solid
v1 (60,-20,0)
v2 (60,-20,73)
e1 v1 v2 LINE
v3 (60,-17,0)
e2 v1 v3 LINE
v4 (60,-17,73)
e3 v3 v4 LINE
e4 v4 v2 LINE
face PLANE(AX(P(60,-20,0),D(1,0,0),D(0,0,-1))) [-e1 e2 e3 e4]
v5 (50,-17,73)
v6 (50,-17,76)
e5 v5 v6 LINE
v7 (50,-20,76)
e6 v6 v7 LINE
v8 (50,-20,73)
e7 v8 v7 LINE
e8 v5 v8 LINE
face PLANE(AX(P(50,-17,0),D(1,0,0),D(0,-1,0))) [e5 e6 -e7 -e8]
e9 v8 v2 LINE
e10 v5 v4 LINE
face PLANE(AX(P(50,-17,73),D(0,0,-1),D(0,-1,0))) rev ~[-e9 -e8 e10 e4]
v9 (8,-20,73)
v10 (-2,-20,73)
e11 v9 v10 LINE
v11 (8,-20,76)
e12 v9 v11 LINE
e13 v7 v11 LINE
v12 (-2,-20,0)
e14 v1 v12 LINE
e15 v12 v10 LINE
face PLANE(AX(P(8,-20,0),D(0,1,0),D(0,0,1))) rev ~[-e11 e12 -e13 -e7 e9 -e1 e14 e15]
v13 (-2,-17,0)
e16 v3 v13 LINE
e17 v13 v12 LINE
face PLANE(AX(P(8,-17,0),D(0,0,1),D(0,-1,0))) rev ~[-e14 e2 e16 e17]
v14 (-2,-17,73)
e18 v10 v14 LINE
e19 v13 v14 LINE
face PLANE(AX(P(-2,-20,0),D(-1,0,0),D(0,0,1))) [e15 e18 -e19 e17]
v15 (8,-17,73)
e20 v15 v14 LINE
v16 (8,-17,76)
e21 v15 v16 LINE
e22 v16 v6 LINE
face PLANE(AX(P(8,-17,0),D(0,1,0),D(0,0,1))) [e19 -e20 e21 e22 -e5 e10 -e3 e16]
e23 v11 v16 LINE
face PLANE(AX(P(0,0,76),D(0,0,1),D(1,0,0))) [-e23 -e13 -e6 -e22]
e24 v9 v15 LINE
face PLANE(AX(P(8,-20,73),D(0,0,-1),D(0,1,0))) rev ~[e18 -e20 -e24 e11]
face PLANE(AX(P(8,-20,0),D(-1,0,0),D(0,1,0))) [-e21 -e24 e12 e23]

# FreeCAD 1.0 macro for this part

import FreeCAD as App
import Part
import Sketcher

V = App.Vector
Q = App.Units.Quantity


def add_polygon(sketch, points):
    """Adds a closed chain of lines whose ends are joined by coincident constraints."""
    first, n = sketch.GeometryCount, len(points)
    for a, b in zip(points, points[1:] + points[:1]):
        sketch.addGeometry(Part.LineSegment(App.Vector(*a, 0), App.Vector(*b, 0)), False)
    for i in range(n):
        sketch.addConstraint(Sketcher.Constraint("Coincident", first + i, 2, first + (i + 1) % n, 1))

doc = App.newDocument("Part")
body = doc.addObject("PartDesign::Body", "Body")

sketch1 = body.newObject("Sketcher::SketchObject", "Sketch")
sketch1.AttachmentSupport = (doc.getObject("XY_Plane"), [""])
sketch1.MapMode = "FlatFace"
add_polygon(sketch1, [(8, -20), (50, -20), (50, -17), (8, -17)])
sketch1.addConstraint([
    Sketcher.Constraint("Horizontal", 0),
    Sketcher.Constraint("Vertical", 1),
    Sketcher.Constraint("Horizontal", 2),
    Sketcher.Constraint("Vertical", 3),
    Sketcher.Constraint("DistanceX", 0, 1, 0, 2, Q("42 mm")),
    Sketcher.Constraint("DistanceY", 1, 1, 1, 2, Q("3 mm")),
    Sketcher.Constraint("DistanceX", -1, 1, 0, 2, Q("50 mm")),
    Sketcher.Constraint("DistanceY", 0, 2, -1, 1, Q("20 mm")),
])
pad1 = body.newObject("PartDesign::Pad", "Pad")
pad1.Profile = sketch1
pad1.Length = 76

sketch2 = body.newObject("Sketcher::SketchObject", "Sketch001")
sketch2.AttachmentSupport = (doc.getObject("YZ_Plane"), [""])
sketch2.MapMode = "FlatFace"
sketch2.AttachmentOffset = App.Placement(V(0, 0, 50), App.Rotation())
add_polygon(sketch2, [(-20, 0), (-17, 0), (-17, 73), (-20, 73)])
sketch2.addConstraint([
    Sketcher.Constraint("Horizontal", 0),
    Sketcher.Constraint("Vertical", 1),
    Sketcher.Constraint("Horizontal", 2),
    Sketcher.Constraint("Vertical", 3),
    Sketcher.Constraint("PointOnObject", 0, 2, -1),
    Sketcher.Constraint("DistanceX", 0, 1, 0, 2, Q("3 mm")),
    Sketcher.Constraint("DistanceY", 1, 1, 1, 2, Q("73 mm")),
    Sketcher.Constraint("DistanceX", 0, 2, -1, 1, Q("17 mm")),
])
pad2 = body.newObject("PartDesign::Pad", "Pad001")
pad2.Profile = sketch2
pad2.Length = 10

sketch3 = body.newObject("Sketcher::SketchObject", "Sketch002")
sketch3.AttachmentSupport = (doc.getObject("YZ_Plane"), [""])
sketch3.MapMode = "FlatFace"
sketch3.AttachmentOffset = App.Placement(V(0, 0, 8), App.Rotation())
add_polygon(sketch3, [(-17, 73), (-17, 0), (-20, 0), (-20, 73)])
sketch3.addConstraint([
    Sketcher.Constraint("Vertical", 0),
    Sketcher.Constraint("Horizontal", 1),
    Sketcher.Constraint("Vertical", 2),
    Sketcher.Constraint("Horizontal", 3),
    Sketcher.Constraint("PointOnObject", 0, 2, -1),
    Sketcher.Constraint("DistanceX", 1, 2, 1, 1, Q("3 mm")),
    Sketcher.Constraint("DistanceY", 0, 2, 0, 1, Q("73 mm")),
    Sketcher.Constraint("DistanceX", 0, 2, -1, 1, Q("17 mm")),
])
pad3 = body.newObject("PartDesign::Pad", "Pad002")
pad3.Profile = sketch3
pad3.Length = 10
pad3.Reversed = True

doc.recompute()
